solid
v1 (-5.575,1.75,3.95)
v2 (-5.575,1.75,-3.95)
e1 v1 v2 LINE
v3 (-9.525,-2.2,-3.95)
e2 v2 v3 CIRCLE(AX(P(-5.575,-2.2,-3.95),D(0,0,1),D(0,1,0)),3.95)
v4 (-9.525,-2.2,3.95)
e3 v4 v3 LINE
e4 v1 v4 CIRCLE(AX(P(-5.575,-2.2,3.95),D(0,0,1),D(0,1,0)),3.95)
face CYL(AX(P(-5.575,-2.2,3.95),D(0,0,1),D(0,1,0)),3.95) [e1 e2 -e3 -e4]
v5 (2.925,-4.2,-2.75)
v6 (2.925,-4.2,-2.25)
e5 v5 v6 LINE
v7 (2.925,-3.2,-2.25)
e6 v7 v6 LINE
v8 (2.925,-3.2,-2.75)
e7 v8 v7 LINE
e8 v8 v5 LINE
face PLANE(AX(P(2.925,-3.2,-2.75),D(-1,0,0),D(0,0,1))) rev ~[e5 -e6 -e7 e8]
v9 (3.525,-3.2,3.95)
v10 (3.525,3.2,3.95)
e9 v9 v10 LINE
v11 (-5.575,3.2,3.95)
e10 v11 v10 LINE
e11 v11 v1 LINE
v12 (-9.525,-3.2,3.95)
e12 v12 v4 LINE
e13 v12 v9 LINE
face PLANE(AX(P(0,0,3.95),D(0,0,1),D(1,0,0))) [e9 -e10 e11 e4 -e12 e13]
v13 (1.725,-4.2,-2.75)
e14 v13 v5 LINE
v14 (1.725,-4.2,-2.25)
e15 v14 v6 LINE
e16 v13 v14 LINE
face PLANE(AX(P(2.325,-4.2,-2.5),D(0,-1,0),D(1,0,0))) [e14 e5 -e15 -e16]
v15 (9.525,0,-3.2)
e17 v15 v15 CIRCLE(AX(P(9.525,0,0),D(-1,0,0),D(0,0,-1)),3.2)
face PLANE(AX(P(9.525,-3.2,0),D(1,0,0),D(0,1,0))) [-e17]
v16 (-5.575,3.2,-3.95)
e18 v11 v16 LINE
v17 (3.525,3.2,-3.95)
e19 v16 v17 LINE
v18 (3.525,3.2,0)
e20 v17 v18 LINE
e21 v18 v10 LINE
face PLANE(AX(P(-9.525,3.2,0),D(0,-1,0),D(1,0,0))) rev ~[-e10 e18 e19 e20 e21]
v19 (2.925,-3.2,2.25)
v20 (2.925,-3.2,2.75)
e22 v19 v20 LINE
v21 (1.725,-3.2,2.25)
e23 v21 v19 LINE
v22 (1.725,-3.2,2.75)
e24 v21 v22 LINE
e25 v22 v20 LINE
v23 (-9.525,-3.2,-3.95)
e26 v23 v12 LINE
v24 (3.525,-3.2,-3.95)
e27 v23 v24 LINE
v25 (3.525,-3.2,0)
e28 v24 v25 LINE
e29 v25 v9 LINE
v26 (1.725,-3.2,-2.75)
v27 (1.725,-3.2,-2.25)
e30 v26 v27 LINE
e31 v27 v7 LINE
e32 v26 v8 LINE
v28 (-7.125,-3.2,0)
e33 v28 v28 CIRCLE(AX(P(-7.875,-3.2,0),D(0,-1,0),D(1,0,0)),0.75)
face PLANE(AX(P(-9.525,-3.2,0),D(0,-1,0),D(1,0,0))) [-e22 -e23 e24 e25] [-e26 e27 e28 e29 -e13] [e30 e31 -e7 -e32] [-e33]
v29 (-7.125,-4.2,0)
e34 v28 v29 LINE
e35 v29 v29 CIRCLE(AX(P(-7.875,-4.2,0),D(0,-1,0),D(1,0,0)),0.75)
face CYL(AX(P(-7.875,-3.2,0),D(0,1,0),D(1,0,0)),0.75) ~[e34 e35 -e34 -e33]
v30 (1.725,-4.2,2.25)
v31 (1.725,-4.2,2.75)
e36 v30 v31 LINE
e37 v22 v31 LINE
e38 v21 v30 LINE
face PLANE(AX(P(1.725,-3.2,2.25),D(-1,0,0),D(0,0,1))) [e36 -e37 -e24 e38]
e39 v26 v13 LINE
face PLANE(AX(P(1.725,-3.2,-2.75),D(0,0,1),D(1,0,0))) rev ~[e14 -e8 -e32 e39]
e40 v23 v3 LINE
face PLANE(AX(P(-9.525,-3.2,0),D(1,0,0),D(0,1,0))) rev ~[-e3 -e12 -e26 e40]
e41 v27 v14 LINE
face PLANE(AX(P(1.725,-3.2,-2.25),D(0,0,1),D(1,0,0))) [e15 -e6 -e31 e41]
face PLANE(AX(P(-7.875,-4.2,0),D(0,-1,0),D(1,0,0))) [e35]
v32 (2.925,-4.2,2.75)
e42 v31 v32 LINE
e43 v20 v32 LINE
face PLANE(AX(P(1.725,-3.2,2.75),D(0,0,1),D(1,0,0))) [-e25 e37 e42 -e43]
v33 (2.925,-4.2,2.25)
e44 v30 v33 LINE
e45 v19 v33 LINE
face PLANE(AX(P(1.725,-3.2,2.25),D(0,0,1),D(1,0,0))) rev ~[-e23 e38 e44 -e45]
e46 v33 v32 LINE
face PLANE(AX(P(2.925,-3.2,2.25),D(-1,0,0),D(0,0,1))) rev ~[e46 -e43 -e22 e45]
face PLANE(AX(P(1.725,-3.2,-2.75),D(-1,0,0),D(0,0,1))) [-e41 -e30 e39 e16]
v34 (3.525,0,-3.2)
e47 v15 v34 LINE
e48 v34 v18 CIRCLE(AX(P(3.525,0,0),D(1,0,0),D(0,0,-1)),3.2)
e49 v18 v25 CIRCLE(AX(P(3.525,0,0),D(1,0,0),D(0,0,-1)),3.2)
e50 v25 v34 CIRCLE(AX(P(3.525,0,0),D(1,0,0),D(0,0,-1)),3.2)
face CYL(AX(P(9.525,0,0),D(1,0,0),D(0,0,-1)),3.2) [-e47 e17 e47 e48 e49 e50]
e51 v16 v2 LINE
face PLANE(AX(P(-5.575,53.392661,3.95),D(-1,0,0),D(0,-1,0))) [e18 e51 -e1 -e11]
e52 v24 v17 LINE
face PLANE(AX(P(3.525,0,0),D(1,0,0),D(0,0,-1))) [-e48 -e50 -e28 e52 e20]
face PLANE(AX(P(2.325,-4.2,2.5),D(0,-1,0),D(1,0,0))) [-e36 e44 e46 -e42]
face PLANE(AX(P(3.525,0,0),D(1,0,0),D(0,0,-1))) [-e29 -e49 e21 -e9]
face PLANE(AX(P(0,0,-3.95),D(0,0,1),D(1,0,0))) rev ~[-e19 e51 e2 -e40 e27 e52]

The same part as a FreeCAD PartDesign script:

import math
import FreeCAD as App
import Part
import Sketcher

V = App.Vector

doc = App.newDocument("Part")
params = doc.addObject("Spreadsheet::Sheet", "Params")
for row, (alias, value) in enumerate([
    ("sketch1_height", "6.4 mm"),
    ("sketch1_width", "19.05 mm"),
    ("pad1_length", "7.9 mm"),
    ("sketch2_diameter", "6.4 mm"),
    ("pocket1_length", "6 mm"),
    ("sketch3_diameter", "1.5 mm"),
    ("sketch3_width", "1.2 mm"),
    ("sketch3_height", "0.5 mm"),
    ("pad2_length", "1 mm"),
    ("sketch4_radius", "3.95 mm"),
], start=1):
    params.set(f"A{row}", alias)
    params.set(f"B{row}", "=" + value)
    params.setAlias(f"B{row}", alias)

body = doc.addObject("PartDesign::Body", "Body")

# Sketch on XY plane
sketch1 = body.newObject("Sketcher::SketchObject", "Sketch")
sketch1.AttachmentSupport = (doc.getObject("XY_Plane"), [""])
sketch1.MapMode = "FlatFace"
sketch1.addGeometry([
    Part.LineSegment(V(-10, 3, 0), V(-10, -3, 0)),
    Part.LineSegment(V(-10, -3, 0), V(10, -3, 0)),
    Part.LineSegment(V(10, -3, 0), V(10, 3, 0)),
    Part.LineSegment(V(10, 3, 0), V(-10, 3, 0)),
], False)
sketch1.addConstraint([
    Sketcher.Constraint("Coincident", 0, 2, 1, 1),
    Sketcher.Constraint("Coincident", 1, 2, 2, 1),
    Sketcher.Constraint("Coincident", 2, 2, 3, 1),
    Sketcher.Constraint("Coincident", 3, 2, 0, 1),
    Sketcher.Constraint("Vertical", 0),
    Sketcher.Constraint("Horizontal", 1),
    Sketcher.Constraint("Vertical", 2),
    Sketcher.Constraint("Horizontal", 3),
    Sketcher.Constraint("Symmetric", 0, 2, 2, 2, -1, 1),
    Sketcher.Constraint("DistanceY", 0, 2, 0, 1, 6.4),
    Sketcher.Constraint("DistanceX", 1, 1, 1, 2, 19.05),
])
sketch1.setExpression("Constraints[9]", "Params.sketch1_height")
sketch1.setExpression("Constraints[10]", "Params.sketch1_width")
pad1 = body.newObject("PartDesign::Pad", "Pad")
pad1.Profile = sketch1
pad1.setExpression("Length", "Params.pad1_length")
pad1.Midplane = True

# Sketch on YZ plane
sketch2 = body.newObject("Sketcher::SketchObject", "Sketch001")
sketch2.AttachmentSupport = (doc.getObject("YZ_Plane"), [""])
sketch2.MapMode = "FlatFace"
sketch2.AttachmentOffset = App.Placement(V(0, 0, 9.525), App.Rotation())
sketch2.addGeometry([
    Part.LineSegment(V(6.4, 7.1, 0), V(-6.4, 7.1, 0)),  # 0
    Part.LineSegment(V(-6.4, 7.1, 0), V(-6.4, -7.1, 0)),  # 1
    Part.LineSegment(V(-6.4, -7.1, 0), V(6.4, -7.1, 0)),  # 2
    Part.LineSegment(V(6.4, -7.1, 0), V(6.4, 7.1, 0)),  # 3
    Part.Circle(V(0, 0, 0), V(0, 0, 1), 3.2),  # 4
], False)
sketch2.addConstraint([
    Sketcher.Constraint("Coincident", 0, 2, 1, 1),
    Sketcher.Constraint("Coincident", 1, 2, 2, 1),
    Sketcher.Constraint("Coincident", 2, 2, 3, 1),
    Sketcher.Constraint("Coincident", 3, 2, 0, 1),
    Sketcher.Constraint("Horizontal", 0),
    Sketcher.Constraint("Vertical", 1),
    Sketcher.Constraint("Horizontal", 2),
    Sketcher.Constraint("Vertical", 3),
    Sketcher.Constraint("Coincident", 4, 3, -1, 1),
    Sketcher.Constraint("Symmetric", 0, 2, 2, 2, -1, 1),
    Sketcher.Constraint("Diameter", 4, 6.4),
    Sketcher.Constraint("DistanceX", 0, 2, 0, 1, 12.718),
    Sketcher.Constraint("DistanceY", 1, 2, 1, 1, 14.218),
])
sketch2.setExpression("Constraints[10]", "Params.sketch2_diameter")
pocket1 = body.newObject("PartDesign::Pocket", "Pocket")
pocket1.Profile = sketch2
pocket1.setExpression("Length", "Params.pocket1_length")

# Sketch on XZ plane
sketch3 = body.newObject("Sketcher::SketchObject", "Sketch002")
sketch3.AttachmentSupport = (doc.getObject("XZ_Plane"), [""])
sketch3.MapMode = "FlatFace"
sketch3.AttachmentOffset = App.Placement(V(0, 0, 3.2), App.Rotation())
sketch3.addGeometry([
    Part.Circle(V(-7.9, 0, 0), V(0, 0, 1), 0.8),  # 0
    Part.LineSegment(V(1.7, 2.8, 0), V(1.7, 2.2, 0)),  # 1
    Part.LineSegment(V(1.7, 2.2, 0), V(2.9, 2.2, 0)),  # 2
    Part.LineSegment(V(2.9, 2.2, 0), V(2.9, 2.8, 0)),  # 3
    Part.LineSegment(V(2.9, 2.8, 0), V(1.7, 2.8, 0)),  # 4
    Part.LineSegment(V(1.7, -2.2, 0), V(1.7, -2.8, 0)),  # 5
    Part.LineSegment(V(1.7, -2.8, 0), V(2.9, -2.8, 0)),  # 6
    Part.LineSegment(V(2.9, -2.8, 0), V(2.9, -2.2, 0)),  # 7
    Part.LineSegment(V(2.9, -2.2, 0), V(1.7, -2.2, 0)),  # 8
], False)
sketch3.addConstraint([
    Sketcher.Constraint("Coincident", 1, 2, 2, 1),
    Sketcher.Constraint("Coincident", 2, 2, 3, 1),
    Sketcher.Constraint("Coincident", 3, 2, 4, 1),
    Sketcher.Constraint("Coincident", 4, 2, 1, 1),
    Sketcher.Constraint("Coincident", 5, 2, 6, 1),
    Sketcher.Constraint("Coincident", 6, 2, 7, 1),
    Sketcher.Constraint("Coincident", 7, 2, 8, 1),
    Sketcher.Constraint("Coincident", 8, 2, 5, 1),
    Sketcher.Constraint("Vertical", 1),
    Sketcher.Constraint("Horizontal", 2),
    Sketcher.Constraint("Vertical", 3),
    Sketcher.Constraint("Horizontal", 4),
    Sketcher.Constraint("Vertical", 5),
    Sketcher.Constraint("Horizontal", 6),
    Sketcher.Constraint("Vertical", 7),
    Sketcher.Constraint("Horizontal", 8),
    Sketcher.Constraint("Symmetric", 4, 2, 5, 2, -1),
    Sketcher.Constraint("Symmetric", 2, 2, 7, 2, -1),
    Sketcher.Constraint("PointOnObject", 0, 3, -1),
    Sketcher.Constraint("Diameter", 0, 1.5),
    Sketcher.Constraint("DistanceX", 2, 1, 2, 2, 1.2),
    Sketcher.Constraint("DistanceY", 1, 2, 1, 1, 0.5),
    Sketcher.Constraint("DistanceY", 5, 2, 1, 2, 5.0),
    Sketcher.Constraint("DistanceX", 0, 3, 1, 2, 9.6),
    Sketcher.Constraint("DistanceX", 0, 3, -1, 1, 7.875),
])
sketch3.setExpression("Constraints[19]", "Params.sketch3_diameter")
sketch3.setExpression("Constraints[20]", "Params.sketch3_width")
sketch3.setExpression("Constraints[21]", "Params.sketch3_height")
pad2 = body.newObject("PartDesign::Pad", "Pad001")
pad2.Profile = sketch3
pad2.setExpression("Length", "Params.pad2_length")

# Sketch on XY plane
sketch4 = body.newObject("Sketcher::SketchObject", "Sketch003")
sketch4.AttachmentSupport = (doc.getObject("XY_Plane"), [""])
sketch4.MapMode = "FlatFace"
sketch4.AttachmentOffset = App.Placement(V(0, 0, 3.95), App.Rotation())
sketch4.addGeometry([
    Part.LineSegment(V(-5.6, 1.8, 0), V(-5.6, 53.4, 0)),  # 0
    Part.LineSegment(V(-5.6, 53.4, 0), V(-105.9, 57.1, 0)),  # 1
    Part.LineSegment(V(-105.9, 57.1, 0), V(-109.8, -49.7, 0)),  # 2
    Part.LineSegment(V(-109.8, -49.7, 0), V(-9.5, -53.4, 0)),  # 3
    Part.LineSegment(V(-9.5, -53.4, 0), V(-9.5, -2.2, 0)),  # 4
    Part.ArcOfCircle(Part.Circle(V(-5.6, -2.2, 0), V(0, 0, 1), 3.9), math.radians(90), math.radians(180)),  # 5
], False)
sketch4.addConstraint([
    Sketcher.Constraint("Coincident", 0, 2, 1, 1),
    Sketcher.Constraint("Coincident", 1, 2, 2, 1),
    Sketcher.Constraint("Coincident", 2, 2, 3, 1),
    Sketcher.Constraint("Coincident", 3, 2, 4, 1),
    Sketcher.Constraint("Tangent", 4, 2, 5, 2),
    Sketcher.Constraint("Coincident", 5, 1, 0, 1),
    Sketcher.Constraint("Vertical", 0),
    Sketcher.Constraint("Vertical", 4),
    Sketcher.Constraint("Perpendicular", 1, 2),
    Sketcher.Constraint("Perpendicular", 2, 3),
    Sketcher.Constraint("Vertical", 5, 3, 0, 2),
    Sketcher.Constraint("Equal", 1, 3),
    Sketcher.Constraint("Radius", 5, 3.95),
    Sketcher.Constraint("DistanceY", 5, 3, -1, 1, 2.2),
    Sketcher.Constraint("DistanceX", 5, 3, -1, 1, 5.575),
    Sketcher.Constraint("DistanceY", 0, 1, 0, 2, 51.642661),
    Sketcher.Constraint("DistanceY", 4, 1, 4, 2, 51.192661),
    Sketcher.Constraint("Distance", 1, 100.385322),
])
sketch4.setExpression("Constraints[12]", "Params.sketch4_radius")
pocket2 = body.newObject("PartDesign::Pocket", "Pocket001")
pocket2.Profile = sketch4
pocket2.Type = "ThroughAll"
pocket2.Midplane = True

doc.recompute()
